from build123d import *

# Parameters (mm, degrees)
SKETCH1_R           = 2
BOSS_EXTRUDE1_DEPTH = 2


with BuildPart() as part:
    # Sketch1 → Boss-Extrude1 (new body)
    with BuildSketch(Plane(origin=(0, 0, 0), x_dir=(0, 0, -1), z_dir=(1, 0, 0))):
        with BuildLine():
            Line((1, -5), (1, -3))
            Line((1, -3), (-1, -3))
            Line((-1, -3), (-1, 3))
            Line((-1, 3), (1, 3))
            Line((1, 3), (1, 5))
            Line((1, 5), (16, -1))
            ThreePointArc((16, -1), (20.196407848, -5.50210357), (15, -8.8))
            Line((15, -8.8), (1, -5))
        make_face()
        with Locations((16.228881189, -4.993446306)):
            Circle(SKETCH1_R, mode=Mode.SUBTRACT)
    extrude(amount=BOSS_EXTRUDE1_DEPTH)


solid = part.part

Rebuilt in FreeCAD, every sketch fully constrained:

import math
import FreeCAD as App
import Part
import Sketcher
from FreeCAD import Vector
Q = App.Units.Quantity

doc = App.newDocument("Part")
params = doc.addObject("Spreadsheet::Sheet", "Params")
for row, (alias, value) in enumerate([
    ("sketch1_diameter", "4 mm"),
    ("sketch1_radius", "4 mm"),
    ("sketch1_width", "2 mm"),
    ("sketch1_width2", "6 mm"),
    ("pad1_length", "2 mm"),
], start=1):
    params.set(f"A{row}", alias)
    params.set(f"B{row}", "=" + value)
    params.setAlias(f"B{row}", alias)

body = doc.addObject("PartDesign::Body", "Body")

# Sketch on YZ plane
sketch1 = body.newObject("Sketcher::SketchObject", "Sketch")
sketch1.AttachmentSupport = (doc.getObject("YZ_Plane"), [""])
sketch1.MapMode = "FlatFace"
sketch1.addGeometry([
    Part.LineSegment(Vector(-3, -1, 0), Vector(-5, -1, 0)),  # 0
    Part.LineSegment(Vector(-5, -1, 0), Vector(-8.8, -15, 0)),  # 1
    Part.ArcOfCircle(Part.Circle(Vector(-5, -16.2, 0), Vector(0, 0, 1), 4), math.radians(162), math.radians(363)),  # 2
    Part.LineSegment(Vector(-1, -16, 0), Vector(5, -1, 0)),  # 3
    Part.LineSegment(Vector(5, -1, 0), Vector(3, -1, 0)),  # 4
    Part.LineSegment(Vector(3, -1, 0), Vector(3, 1, 0)),  # 5
    Part.LineSegment(Vector(3, 1, 0), Vector(-3, 1, 0)),  # 6
    Part.LineSegment(Vector(-3, 1, 0), Vector(-3, -1, 0)),  # 7
    Part.Circle(Vector(-5, -16.2, 0), Vector(0, 0, 1), 2),  # 8
], False)
sketch1.addConstraint([
    Sketcher.Constraint("Coincident", 0, 2, 1, 1),
    Sketcher.Constraint("Coincident", 1, 2, 2, 1),
    Sketcher.Constraint("Coincident", 2, 2, 3, 1),
    Sketcher.Constraint("Coincident", 3, 2, 4, 1),
    Sketcher.Constraint("Coincident", 4, 2, 5, 1),
    Sketcher.Constraint("Coincident", 5, 2, 6, 1),
    Sketcher.Constraint("Coincident", 6, 2, 7, 1),
    Sketcher.Constraint("Coincident", 7, 2, 0, 1),
    Sketcher.Constraint("Horizontal", 0),
    Sketcher.Constraint("Horizontal", 4),
    Sketcher.Constraint("Vertical", 5),
    Sketcher.Constraint("Horizontal", 6),
    Sketcher.Constraint("Vertical", 7),
    Sketcher.Constraint("Coincident", 8, 3, 2, 3),
    Sketcher.Constraint("Symmetric", 4, 2, 6, 2, -1, 1),
    Sketcher.Constraint("Symmetric", 0, 2, 3, 2, -2),
    Sketcher.Constraint("Equal", 4, 5),
    Sketcher.Constraint("Diameter", 8, Q("4 mm")),
    Sketcher.Constraint("Radius", 2, Q("4 mm")),
    Sketcher.Constraint("DistanceX", 0, 2, 0, 1, Q("2 mm")),
    Sketcher.Constraint("DistanceX", 6, 2, 6, 1, Q("6 mm")),
    Sketcher.Constraint("DistanceY", 1, 2, -1, 1, Q("15 mm")),
    Sketcher.Constraint("DistanceX", 2, 2, -1, 1, Q("1 mm")),
    Sketcher.Constraint("DistanceY", 2, 2, -1, 1, Q("16 mm")),
    Sketcher.Constraint("DistanceX", 1, 2, -1, 1, Q("8.8 mm")),
])
sketch1.setExpression("Constraints[17]", "Params.sketch1_diameter")
sketch1.setExpression("Constraints[18]", "Params.sketch1_radius")
sketch1.setExpression("Constraints[19]", "Params.sketch1_width")
sketch1.setExpression("Constraints[20]", "Params.sketch1_width2")
pad1 = body.newObject("PartDesign::Pad", "Pad")
pad1.Profile = sketch1
pad1.setExpression("Length", "Params.pad1_length")

doc.recompute()
